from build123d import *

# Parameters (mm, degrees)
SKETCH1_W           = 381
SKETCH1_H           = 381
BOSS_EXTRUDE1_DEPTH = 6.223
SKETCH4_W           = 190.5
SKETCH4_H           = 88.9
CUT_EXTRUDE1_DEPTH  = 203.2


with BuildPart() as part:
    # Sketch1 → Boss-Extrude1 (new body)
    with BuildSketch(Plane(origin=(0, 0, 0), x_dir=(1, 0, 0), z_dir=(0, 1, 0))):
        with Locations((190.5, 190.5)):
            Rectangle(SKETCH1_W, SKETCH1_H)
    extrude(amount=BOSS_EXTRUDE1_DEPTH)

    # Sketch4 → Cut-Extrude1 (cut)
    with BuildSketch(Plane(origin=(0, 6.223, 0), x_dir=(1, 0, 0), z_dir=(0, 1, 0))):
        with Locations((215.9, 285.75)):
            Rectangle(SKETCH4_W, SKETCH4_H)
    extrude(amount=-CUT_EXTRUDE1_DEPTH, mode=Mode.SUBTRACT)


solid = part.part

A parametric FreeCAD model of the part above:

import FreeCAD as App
import Part
import Sketcher
from FreeCAD import Vector
Q = App.Units.Quantity

doc = App.newDocument("Part")
body = doc.addObject("PartDesign::Body", "Body")

# Sketch on XZ plane
sketch1 = body.newObject("Sketcher::SketchObject", "Sketch")
sketch1.AttachmentSupport = (doc.getObject("XZ_Plane"), [""])
sketch1.MapMode = "FlatFace"
sketch1.addGeometry([
    Part.LineSegment(Vector(0, -381, 0), Vector(0, 0, 0)),
    Part.LineSegment(Vector(0, 0, 0), Vector(381, 0, 0)),
    Part.LineSegment(Vector(381, 0, 0), Vector(381, -381, 0)),
    Part.LineSegment(Vector(381, -381, 0), Vector(0, -381, 0)),
], False)
sketch1.addConstraint([
    Sketcher.Constraint("Coincident", 0, 2, 1, 1),
    Sketcher.Constraint("Coincident", 1, 2, 2, 1),
    Sketcher.Constraint("Coincident", 2, 2, 3, 1),
    Sketcher.Constraint("Coincident", 3, 2, 0, 1),
    Sketcher.Constraint("Vertical", 0),
    Sketcher.Constraint("Horizontal", 1),
    Sketcher.Constraint("Vertical", 2),
    Sketcher.Constraint("Horizontal", 3),
    Sketcher.Constraint("Coincident", 0, 2, -1, 1),
    Sketcher.Constraint("Equal", 3, 0),
    Sketcher.Constraint("DistanceX", 1, 1, 1, 2, Q("15 in")),
])
pad1 = body.newObject("PartDesign::Pad", "Pad")
pad1.Profile = sketch1
pad1.Length = Q("0.245 in")
pad1.Reversed = True

# Sketch on XZ plane
sketch2 = body.newObject("Sketcher::SketchObject", "Sketch001")
sketch2.AttachmentSupport = (doc.getObject("XZ_Plane"), [""])
sketch2.MapMode = "FlatFace"
sketch2.AttachmentOffset = App.Placement(Vector(0, 0, -0.245 * 25.4), App.Rotation())
sketch2.addGeometry([
    Part.LineSegment(Vector(120.65, -330.2, 0), Vector(120.65, -241.3, 0)),
    Part.LineSegment(Vector(120.65, -241.3, 0), Vector(311.15, -241.3, 0)),
    Part.LineSegment(Vector(311.15, -241.3, 0), Vector(311.15, -330.2, 0)),
    Part.LineSegment(Vector(311.15, -330.2, 0), Vector(120.65, -330.2, 0)),
], False)
sketch2.addConstraint([
    Sketcher.Constraint("Coincident", 0, 2, 1, 1),
    Sketcher.Constraint("Coincident", 1, 2, 2, 1),
    Sketcher.Constraint("Coincident", 2, 2, 3, 1),
    Sketcher.Constraint("Coincident", 3, 2, 0, 1),
    Sketcher.Constraint("Vertical", 0),
    Sketcher.Constraint("Horizontal", 1),
    Sketcher.Constraint("Vertical", 2),
    Sketcher.Constraint("Horizontal", 3),
    Sketcher.Constraint("DistanceX", 1, 1, 1, 2, Q("7.5 in")),
    Sketcher.Constraint("DistanceY", 0, 1, 0, 2, Q("3.5 in")),
    Sketcher.Constraint("DistanceY", 2, 2, -1, 1, Q("13 in")),
    Sketcher.Constraint("DistanceX", -1, 1, 0, 2, Q("4.75 in")),
])
pocket1 = body.newObject("PartDesign::Pocket", "Pocket")
pocket1.Profile = sketch2
pocket1.Length = Q("8 in")
pocket1.Reversed = True

doc.recompute()
